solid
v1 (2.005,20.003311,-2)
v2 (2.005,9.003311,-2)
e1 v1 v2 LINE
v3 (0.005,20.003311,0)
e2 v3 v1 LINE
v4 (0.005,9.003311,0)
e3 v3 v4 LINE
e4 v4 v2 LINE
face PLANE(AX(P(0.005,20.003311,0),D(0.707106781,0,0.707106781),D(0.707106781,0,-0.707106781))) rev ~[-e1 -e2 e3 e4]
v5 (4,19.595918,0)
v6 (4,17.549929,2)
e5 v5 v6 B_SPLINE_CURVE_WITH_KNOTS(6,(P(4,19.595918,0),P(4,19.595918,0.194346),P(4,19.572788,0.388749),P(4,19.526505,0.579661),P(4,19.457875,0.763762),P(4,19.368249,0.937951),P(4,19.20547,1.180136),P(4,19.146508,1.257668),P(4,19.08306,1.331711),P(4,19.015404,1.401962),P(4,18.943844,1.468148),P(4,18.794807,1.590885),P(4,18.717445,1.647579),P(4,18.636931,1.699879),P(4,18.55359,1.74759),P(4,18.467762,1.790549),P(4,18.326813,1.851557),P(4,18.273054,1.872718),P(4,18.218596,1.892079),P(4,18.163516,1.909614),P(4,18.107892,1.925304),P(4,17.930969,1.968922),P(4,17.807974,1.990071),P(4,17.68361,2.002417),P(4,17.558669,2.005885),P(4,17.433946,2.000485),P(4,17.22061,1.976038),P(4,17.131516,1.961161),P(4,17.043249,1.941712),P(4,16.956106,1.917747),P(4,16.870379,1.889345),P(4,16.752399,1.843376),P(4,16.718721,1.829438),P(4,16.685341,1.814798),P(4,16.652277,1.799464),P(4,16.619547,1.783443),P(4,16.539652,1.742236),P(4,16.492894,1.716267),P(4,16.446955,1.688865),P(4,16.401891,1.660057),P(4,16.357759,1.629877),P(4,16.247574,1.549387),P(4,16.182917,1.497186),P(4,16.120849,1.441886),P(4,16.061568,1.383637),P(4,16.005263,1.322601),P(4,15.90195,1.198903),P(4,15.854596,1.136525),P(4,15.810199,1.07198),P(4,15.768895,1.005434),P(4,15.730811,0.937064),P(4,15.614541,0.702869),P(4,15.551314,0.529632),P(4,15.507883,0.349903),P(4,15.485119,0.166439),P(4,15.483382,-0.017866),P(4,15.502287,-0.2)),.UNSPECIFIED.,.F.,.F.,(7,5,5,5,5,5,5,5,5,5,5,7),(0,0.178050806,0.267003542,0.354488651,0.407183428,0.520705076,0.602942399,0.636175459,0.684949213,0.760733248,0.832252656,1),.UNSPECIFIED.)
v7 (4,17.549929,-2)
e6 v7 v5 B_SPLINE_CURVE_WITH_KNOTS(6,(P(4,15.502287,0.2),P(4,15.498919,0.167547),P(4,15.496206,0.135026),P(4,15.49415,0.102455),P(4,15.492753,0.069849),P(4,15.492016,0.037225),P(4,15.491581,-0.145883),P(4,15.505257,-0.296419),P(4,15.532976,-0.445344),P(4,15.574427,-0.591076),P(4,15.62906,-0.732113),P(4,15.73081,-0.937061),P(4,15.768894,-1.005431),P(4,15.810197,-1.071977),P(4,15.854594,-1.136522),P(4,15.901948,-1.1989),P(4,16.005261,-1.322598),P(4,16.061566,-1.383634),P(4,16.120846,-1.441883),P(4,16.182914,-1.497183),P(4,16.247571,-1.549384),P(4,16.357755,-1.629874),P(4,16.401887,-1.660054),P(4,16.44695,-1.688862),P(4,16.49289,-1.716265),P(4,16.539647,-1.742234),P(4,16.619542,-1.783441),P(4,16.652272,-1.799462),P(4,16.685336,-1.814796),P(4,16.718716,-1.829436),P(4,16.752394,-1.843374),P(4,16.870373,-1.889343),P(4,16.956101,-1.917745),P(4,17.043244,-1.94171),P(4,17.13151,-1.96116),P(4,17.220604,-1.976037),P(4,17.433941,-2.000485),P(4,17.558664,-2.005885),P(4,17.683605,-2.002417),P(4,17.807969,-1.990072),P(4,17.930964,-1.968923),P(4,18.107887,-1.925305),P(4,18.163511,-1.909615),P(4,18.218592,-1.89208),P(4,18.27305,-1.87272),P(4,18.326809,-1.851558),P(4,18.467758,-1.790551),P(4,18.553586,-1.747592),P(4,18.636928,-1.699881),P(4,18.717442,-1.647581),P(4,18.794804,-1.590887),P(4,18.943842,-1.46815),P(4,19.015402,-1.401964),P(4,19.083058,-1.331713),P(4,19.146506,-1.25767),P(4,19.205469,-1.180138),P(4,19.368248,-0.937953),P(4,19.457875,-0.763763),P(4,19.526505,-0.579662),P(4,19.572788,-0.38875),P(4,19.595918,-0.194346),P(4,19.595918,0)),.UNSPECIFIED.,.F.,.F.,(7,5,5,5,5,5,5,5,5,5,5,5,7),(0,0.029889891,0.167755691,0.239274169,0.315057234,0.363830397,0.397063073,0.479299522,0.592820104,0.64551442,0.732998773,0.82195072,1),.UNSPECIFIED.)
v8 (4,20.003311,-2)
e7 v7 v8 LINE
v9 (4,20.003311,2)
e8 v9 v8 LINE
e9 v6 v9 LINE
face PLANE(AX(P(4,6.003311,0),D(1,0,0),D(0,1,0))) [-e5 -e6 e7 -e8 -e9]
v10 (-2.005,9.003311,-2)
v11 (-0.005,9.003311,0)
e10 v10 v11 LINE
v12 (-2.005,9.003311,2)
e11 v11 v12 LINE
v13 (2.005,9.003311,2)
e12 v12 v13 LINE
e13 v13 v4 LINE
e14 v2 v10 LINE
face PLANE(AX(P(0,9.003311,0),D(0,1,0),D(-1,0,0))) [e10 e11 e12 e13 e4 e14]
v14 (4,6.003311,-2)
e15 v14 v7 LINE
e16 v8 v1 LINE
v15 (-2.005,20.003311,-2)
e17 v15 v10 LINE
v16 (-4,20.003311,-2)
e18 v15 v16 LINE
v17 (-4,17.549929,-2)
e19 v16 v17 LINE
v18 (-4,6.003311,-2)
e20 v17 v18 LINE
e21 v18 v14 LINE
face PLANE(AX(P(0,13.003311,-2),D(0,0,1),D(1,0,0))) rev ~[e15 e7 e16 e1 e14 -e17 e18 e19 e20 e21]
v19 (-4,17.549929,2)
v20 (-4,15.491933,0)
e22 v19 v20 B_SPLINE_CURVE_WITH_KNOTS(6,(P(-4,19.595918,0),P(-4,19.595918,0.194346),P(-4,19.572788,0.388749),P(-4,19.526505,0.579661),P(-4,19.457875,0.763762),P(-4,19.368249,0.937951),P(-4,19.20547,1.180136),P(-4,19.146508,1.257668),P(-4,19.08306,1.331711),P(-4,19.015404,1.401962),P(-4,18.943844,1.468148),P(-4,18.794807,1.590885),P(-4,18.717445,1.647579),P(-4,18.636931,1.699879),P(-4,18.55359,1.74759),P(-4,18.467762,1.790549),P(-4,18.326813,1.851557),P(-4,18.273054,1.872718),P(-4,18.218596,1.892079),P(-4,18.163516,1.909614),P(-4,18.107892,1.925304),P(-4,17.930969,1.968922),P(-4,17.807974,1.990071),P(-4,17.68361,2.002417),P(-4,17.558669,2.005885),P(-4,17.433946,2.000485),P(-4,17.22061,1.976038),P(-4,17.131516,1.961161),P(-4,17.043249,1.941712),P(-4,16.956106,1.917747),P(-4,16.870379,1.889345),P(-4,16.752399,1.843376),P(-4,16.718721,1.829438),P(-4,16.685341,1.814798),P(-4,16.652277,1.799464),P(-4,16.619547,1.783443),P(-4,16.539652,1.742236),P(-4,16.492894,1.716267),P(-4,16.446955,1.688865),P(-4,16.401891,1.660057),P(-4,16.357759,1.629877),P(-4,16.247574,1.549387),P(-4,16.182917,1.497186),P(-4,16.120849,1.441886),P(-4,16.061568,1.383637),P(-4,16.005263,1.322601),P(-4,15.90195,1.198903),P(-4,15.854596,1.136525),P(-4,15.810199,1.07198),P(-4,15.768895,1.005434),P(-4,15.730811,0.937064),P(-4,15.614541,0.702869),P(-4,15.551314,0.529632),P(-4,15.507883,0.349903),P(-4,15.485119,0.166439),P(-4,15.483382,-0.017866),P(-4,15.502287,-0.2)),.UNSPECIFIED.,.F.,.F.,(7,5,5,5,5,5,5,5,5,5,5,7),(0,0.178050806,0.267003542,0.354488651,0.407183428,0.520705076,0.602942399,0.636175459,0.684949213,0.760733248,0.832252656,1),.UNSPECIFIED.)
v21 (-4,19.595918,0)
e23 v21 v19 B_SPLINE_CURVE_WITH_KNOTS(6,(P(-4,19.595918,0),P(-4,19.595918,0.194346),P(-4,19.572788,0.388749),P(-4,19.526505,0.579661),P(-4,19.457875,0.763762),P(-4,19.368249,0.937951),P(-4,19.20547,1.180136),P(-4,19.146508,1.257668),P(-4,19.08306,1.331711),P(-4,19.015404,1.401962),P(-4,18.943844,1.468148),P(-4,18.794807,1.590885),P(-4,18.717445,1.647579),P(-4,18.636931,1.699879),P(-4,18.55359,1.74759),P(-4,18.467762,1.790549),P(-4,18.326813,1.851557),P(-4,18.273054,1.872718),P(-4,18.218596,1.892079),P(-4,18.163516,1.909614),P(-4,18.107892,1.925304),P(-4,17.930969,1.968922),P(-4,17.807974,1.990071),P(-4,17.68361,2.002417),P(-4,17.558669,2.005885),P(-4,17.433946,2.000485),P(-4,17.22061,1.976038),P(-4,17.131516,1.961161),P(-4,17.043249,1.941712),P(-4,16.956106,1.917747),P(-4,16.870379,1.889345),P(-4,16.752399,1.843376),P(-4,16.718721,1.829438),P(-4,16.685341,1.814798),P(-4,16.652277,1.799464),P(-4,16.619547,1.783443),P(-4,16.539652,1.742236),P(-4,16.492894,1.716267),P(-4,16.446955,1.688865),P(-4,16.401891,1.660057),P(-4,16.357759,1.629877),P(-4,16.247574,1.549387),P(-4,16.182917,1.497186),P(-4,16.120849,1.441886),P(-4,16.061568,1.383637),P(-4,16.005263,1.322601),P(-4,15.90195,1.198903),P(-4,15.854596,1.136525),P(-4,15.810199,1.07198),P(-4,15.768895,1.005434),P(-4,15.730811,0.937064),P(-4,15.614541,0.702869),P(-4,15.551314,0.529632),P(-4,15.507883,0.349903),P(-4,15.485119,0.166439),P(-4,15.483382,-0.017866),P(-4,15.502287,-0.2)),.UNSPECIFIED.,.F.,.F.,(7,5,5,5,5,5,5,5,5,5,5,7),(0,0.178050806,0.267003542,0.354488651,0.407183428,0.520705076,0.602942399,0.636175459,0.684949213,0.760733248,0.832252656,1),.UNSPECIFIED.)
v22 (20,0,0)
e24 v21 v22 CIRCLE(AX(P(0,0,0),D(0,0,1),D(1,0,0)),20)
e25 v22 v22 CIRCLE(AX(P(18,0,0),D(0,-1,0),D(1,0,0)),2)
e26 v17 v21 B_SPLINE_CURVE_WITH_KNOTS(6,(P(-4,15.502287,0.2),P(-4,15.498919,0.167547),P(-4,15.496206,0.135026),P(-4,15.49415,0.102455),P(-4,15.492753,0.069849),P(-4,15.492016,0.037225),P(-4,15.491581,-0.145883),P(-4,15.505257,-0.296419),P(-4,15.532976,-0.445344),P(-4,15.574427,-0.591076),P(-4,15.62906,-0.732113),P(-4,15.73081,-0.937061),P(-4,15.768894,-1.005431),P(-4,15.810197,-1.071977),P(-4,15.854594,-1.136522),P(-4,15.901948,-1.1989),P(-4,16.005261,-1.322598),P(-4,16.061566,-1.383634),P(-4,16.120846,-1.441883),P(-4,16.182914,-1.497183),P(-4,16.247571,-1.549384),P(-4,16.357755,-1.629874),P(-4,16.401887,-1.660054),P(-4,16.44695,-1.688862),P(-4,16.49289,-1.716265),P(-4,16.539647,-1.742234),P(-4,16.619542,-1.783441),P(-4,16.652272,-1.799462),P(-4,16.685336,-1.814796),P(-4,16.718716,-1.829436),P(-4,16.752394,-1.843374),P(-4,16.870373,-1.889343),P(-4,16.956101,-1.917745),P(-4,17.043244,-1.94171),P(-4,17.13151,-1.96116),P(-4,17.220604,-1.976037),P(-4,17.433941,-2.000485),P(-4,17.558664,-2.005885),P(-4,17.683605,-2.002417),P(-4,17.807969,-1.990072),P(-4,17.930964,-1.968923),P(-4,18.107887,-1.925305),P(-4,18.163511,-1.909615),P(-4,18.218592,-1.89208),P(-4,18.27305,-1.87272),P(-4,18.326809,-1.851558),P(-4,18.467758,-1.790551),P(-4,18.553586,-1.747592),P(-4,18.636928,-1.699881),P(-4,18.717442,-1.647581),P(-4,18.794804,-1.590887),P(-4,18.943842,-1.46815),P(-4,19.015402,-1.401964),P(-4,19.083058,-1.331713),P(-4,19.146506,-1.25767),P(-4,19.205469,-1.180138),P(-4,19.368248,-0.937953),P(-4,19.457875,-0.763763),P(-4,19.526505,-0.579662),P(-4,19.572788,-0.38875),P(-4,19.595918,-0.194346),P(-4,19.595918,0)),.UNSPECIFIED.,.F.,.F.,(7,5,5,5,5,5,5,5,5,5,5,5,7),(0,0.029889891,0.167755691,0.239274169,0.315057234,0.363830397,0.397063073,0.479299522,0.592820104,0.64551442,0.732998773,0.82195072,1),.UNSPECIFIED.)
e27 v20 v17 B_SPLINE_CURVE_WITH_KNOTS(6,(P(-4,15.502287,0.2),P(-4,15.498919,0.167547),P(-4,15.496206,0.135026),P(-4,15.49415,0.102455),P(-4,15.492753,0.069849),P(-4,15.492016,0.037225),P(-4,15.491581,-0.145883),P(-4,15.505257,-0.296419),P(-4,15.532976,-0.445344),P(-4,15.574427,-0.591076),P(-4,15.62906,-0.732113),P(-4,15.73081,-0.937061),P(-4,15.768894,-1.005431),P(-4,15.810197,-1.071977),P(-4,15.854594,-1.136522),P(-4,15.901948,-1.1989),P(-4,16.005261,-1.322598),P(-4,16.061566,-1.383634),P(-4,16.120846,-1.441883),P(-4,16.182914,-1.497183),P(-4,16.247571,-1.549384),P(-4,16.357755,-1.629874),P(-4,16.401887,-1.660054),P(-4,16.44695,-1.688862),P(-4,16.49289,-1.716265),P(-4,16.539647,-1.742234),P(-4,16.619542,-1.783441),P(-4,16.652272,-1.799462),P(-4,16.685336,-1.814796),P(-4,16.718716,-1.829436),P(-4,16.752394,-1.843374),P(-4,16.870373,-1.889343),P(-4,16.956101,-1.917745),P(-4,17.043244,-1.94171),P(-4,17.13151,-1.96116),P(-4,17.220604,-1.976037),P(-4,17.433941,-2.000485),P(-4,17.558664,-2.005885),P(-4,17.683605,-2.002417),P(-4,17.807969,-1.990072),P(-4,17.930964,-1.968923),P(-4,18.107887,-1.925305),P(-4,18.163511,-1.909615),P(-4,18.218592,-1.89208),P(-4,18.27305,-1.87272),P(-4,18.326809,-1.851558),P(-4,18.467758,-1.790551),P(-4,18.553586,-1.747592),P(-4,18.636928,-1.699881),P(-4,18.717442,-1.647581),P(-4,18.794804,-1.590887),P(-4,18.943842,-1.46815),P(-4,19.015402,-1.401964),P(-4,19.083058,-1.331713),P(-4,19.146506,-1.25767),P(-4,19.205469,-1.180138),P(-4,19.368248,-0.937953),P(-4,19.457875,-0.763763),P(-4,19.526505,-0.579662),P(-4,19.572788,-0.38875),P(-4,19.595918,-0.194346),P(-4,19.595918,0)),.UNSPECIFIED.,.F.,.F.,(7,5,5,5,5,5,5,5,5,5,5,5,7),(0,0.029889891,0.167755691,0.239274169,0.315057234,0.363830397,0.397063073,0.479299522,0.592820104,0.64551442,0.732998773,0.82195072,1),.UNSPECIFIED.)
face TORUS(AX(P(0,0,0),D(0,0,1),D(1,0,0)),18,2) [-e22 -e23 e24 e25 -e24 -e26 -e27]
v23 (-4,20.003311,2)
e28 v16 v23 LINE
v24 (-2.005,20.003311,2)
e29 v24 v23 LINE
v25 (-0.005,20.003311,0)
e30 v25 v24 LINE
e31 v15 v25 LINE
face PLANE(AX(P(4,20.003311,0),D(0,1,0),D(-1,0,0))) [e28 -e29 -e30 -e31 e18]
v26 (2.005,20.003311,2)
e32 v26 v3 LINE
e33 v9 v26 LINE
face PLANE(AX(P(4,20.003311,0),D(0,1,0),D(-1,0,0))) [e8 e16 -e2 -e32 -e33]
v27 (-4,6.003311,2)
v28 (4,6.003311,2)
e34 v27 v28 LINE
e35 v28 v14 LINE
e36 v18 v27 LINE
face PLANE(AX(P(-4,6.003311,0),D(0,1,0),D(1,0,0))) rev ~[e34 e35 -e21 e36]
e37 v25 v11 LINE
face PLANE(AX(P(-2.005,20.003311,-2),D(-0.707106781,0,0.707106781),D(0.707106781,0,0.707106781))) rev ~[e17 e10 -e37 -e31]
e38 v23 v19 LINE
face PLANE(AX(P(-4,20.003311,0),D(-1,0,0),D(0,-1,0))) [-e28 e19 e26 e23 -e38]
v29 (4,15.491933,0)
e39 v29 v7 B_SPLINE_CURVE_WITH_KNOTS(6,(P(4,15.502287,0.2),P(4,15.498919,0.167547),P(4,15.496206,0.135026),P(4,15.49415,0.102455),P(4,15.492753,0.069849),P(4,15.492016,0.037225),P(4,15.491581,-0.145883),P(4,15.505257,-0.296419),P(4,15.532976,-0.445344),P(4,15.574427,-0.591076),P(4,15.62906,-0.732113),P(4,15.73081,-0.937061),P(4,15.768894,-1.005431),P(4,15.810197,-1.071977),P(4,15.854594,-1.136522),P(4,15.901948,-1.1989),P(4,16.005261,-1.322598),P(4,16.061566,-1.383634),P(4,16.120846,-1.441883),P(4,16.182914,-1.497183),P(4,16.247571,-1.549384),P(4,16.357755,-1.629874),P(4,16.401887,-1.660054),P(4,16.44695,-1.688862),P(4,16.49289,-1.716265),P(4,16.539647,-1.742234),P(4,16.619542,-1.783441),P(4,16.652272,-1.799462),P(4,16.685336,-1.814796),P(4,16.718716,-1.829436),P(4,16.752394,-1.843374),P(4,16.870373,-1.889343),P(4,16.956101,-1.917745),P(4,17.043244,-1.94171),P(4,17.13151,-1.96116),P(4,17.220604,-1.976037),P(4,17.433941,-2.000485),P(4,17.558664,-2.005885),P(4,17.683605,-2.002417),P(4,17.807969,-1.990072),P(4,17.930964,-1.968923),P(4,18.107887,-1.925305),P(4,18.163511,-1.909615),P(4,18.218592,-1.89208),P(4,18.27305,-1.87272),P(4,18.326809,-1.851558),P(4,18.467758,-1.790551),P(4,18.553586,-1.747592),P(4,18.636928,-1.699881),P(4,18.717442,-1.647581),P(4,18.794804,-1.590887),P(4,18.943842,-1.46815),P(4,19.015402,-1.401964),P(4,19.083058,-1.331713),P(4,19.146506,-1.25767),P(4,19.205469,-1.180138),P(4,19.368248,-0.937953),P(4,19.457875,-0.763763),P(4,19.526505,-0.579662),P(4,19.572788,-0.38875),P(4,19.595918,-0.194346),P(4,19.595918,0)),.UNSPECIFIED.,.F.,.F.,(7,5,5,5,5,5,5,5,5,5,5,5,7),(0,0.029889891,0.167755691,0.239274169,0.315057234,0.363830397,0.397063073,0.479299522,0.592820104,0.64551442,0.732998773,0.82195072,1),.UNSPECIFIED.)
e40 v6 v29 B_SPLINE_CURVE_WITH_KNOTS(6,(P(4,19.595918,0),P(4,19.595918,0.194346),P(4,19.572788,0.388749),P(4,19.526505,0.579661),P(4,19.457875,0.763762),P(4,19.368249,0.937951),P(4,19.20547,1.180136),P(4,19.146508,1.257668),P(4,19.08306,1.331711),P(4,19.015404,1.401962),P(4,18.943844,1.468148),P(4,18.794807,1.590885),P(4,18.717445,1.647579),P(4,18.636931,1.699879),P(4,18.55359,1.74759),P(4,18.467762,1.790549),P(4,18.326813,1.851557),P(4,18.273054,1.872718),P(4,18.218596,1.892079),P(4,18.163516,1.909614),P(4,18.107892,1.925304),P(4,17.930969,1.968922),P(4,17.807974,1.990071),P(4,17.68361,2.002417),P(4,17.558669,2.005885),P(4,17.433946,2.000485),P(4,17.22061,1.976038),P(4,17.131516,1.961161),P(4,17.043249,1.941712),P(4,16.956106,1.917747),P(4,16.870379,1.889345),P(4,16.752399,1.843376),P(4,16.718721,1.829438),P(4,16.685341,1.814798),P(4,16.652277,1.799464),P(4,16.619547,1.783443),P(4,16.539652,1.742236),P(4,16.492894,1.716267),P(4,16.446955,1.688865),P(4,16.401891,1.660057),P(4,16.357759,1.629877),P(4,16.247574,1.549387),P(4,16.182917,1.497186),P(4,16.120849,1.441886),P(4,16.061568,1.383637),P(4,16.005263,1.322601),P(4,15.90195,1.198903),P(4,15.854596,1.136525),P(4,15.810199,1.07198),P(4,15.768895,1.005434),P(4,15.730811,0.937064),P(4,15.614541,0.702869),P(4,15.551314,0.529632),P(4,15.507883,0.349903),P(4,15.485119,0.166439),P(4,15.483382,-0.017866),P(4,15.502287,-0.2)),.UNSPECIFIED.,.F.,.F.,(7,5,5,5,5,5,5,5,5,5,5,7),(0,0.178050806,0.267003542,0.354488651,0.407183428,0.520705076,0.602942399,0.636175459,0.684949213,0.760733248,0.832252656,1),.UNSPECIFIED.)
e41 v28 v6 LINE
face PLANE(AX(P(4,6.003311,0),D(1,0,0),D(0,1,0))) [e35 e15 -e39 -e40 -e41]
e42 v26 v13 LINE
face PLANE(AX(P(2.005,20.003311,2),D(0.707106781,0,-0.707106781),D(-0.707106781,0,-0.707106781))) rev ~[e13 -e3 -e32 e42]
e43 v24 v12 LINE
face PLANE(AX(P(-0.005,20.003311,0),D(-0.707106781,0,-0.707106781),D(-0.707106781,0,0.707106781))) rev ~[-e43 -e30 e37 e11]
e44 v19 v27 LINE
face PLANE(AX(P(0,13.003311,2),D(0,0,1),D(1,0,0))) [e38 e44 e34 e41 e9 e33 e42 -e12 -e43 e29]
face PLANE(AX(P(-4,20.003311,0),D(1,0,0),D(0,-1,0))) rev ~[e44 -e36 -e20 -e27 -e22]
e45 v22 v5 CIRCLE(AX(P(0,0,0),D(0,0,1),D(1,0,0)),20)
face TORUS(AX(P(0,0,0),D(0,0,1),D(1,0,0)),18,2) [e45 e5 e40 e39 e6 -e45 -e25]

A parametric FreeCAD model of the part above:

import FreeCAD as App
import Part
import Sketcher
Q = App.Units.Quantity

doc = App.newDocument("Part")
body = doc.addObject("PartDesign::Body", "Body")

# Sketch on XZ plane
sketch1 = body.newObject("Sketcher::SketchObject", "Sketch")
sketch1.AttachmentSupport = (doc.getObject("XZ_Plane"), [""])
sketch1.MapMode = "FlatFace"
sketch1.addGeometry(Part.Circle(App.Vector(18, 0, 0), App.Vector(0, 0, 1), 2), False)
sketch1.addConstraint([
    Sketcher.Constraint("PointOnObject", 0, 3, -1),
    Sketcher.Constraint("Diameter", 0, Q("4 mm")),
    Sketcher.Constraint("DistanceX", -1, 1, 0, 3, Q("18 mm")),
])
revolution = body.newObject("PartDesign::Revolution", "Revolution")
revolution.Profile = sketch1
revolution.ReferenceAxis = (sketch1, ["V_Axis"])
revolution.Angle = 360

# Sketch on XY plane
sketch2 = body.newObject("Sketcher::SketchObject", "Sketch001")
sketch2.AttachmentSupport = (doc.getObject("XY_Plane"), [""])
sketch2.MapMode = "FlatFace"
sketch2.addGeometry([
    Part.LineSegment(App.Vector(4, 20, 0), App.Vector(-4, 20, 0)),
    Part.LineSegment(App.Vector(-4, 20, 0), App.Vector(-4, 6, 0)),
    Part.LineSegment(App.Vector(-4, 6, 0), App.Vector(4, 6, 0)),
    Part.LineSegment(App.Vector(4, 6, 0), App.Vector(4, 20, 0)),
], False)
sketch2.addConstraint([
    Sketcher.Constraint("Coincident", 0, 2, 1, 1),
    Sketcher.Constraint("Coincident", 1, 2, 2, 1),
    Sketcher.Constraint("Coincident", 2, 2, 3, 1),
    Sketcher.Constraint("Coincident", 3, 2, 0, 1),
    Sketcher.Constraint("Horizontal", 0),
    Sketcher.Constraint("Vertical", 1),
    Sketcher.Constraint("Horizontal", 2),
    Sketcher.Constraint("Vertical", 3),
    Sketcher.Constraint("DistanceX", 0, 2, 0, 1, Q("8 mm")),
    Sketcher.Constraint("DistanceY", 1, 2, 1, 1, Q("14 mm")),
    Sketcher.Constraint("DistanceX", 0, 2, -1, 1, Q("4 mm")),
    Sketcher.Constraint("DistanceY", -1, 1, 0, 2, Q("20.003311 mm")),
])
pad1 = body.newObject("PartDesign::Pad", "Pad")
pad1.Profile = sketch2
pad1.Type = "TwoLengths"
pad1.Length = 2
pad1.Length2 = 2

# Sketch on XZ plane
sketch3 = body.newObject("Sketcher::SketchObject", "Sketch002")
sketch3.AttachmentSupport = (doc.getObject("XZ_Plane"), [""])
sketch3.MapMode = "FlatFace"
sketch3.AttachmentOffset = App.Placement(App.Vector(0, 0, -20.003311), App.Rotation())
sketch3.addGeometry([
    Part.LineSegment(App.Vector(0.005, 0, 0), App.Vector(2.005, -2, 0)),  # 0
    Part.LineSegment(App.Vector(2.005, -2, 0), App.Vector(-2.005, -2, 0)),  # 1
    Part.LineSegment(App.Vector(-2.005, -2, 0), App.Vector(-0.005, 0, 0)),  # 2
    Part.LineSegment(App.Vector(-0.005, 0, 0), App.Vector(-2.005, 2, 0)),  # 3
    Part.LineSegment(App.Vector(-2.005, 2, 0), App.Vector(2.005, 2, 0)),  # 4
    Part.LineSegment(App.Vector(2.005, 2, 0), App.Vector(0.005, 0, 0)),  # 5
], False)
sketch3.addConstraint([
    Sketcher.Constraint("Coincident", 0, 2, 1, 1),
    Sketcher.Constraint("Coincident", 1, 2, 2, 1),
    Sketcher.Constraint("Coincident", 2, 2, 3, 1),
    Sketcher.Constraint("Coincident", 3, 2, 4, 1),
    Sketcher.Constraint("Coincident", 4, 2, 5, 1),
    Sketcher.Constraint("Coincident", 5, 2, 0, 1),
    Sketcher.Constraint("Horizontal", 1),
    Sketcher.Constraint("Horizontal", 4),
    Sketcher.Constraint("Symmetric", 0, 2, 3, 2, -1, 1),
    Sketcher.Constraint("Symmetric", 2, 2, 5, 2, -1, 1),
    Sketcher.Constraint("PointOnObject", 2, 2, -1),
    Sketcher.Constraint("Perpendicular", 0, 2),
    Sketcher.Constraint("Perpendicular", 3, 5),
    Sketcher.Constraint("Vertical", 1, 2, 3, 2),
    Sketcher.Constraint("DistanceY", 0, 2, -1, 1, Q("2 mm")),
    Sketcher.Constraint("DistanceX", 1, 2, 1, 1, Q("4.01 mm")),
])
pocket1 = body.newObject("PartDesign::Pocket", "Pocket")
pocket1.Profile = sketch3
pocket1.Length = 11
pocket1.Reversed = True

doc.recompute()
